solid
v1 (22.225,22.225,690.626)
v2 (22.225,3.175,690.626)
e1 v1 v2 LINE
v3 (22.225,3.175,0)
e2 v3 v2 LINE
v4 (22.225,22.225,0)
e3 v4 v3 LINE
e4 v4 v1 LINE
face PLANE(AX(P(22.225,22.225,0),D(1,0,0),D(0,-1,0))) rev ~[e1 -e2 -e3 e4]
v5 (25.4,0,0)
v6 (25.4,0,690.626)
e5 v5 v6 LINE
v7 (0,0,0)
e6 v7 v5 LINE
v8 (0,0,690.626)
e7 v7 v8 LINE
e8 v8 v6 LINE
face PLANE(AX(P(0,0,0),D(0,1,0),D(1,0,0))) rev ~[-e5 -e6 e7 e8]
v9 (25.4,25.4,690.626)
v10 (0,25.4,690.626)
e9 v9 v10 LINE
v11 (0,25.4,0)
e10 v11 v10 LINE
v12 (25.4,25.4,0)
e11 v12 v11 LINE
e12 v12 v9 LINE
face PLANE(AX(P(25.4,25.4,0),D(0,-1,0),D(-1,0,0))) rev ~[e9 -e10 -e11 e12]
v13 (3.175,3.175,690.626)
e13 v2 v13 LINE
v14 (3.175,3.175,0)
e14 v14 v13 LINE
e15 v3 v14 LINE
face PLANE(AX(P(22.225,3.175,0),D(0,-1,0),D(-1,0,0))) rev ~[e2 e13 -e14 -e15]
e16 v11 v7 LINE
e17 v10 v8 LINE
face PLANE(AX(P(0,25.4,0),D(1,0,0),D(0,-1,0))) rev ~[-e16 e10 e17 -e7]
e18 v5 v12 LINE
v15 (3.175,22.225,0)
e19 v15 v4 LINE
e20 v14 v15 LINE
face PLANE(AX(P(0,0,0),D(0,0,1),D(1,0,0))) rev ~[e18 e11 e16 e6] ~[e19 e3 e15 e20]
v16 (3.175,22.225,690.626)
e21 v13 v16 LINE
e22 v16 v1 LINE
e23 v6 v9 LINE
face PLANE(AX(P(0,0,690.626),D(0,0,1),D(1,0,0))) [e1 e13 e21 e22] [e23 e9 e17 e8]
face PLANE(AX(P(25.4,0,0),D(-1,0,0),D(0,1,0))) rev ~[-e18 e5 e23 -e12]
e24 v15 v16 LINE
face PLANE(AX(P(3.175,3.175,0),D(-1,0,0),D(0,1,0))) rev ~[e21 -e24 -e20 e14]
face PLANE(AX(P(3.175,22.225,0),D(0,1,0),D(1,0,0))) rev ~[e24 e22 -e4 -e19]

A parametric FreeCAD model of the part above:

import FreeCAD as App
import Part
import Sketcher
Q = App.Units.Quantity


def add_polygon(sketch, points):
    """Adds a closed chain of lines whose ends are joined by coincident constraints."""
    first, n = sketch.GeometryCount, len(points)
    for a, b in zip(points, points[1:] + points[:1]):
        sketch.addGeometry(Part.LineSegment(App.Vector(*a, 0), App.Vector(*b, 0)), False)
    for i in range(n):
        sketch.addConstraint(Sketcher.Constraint("Coincident", first + i, 2, first + (i + 1) % n, 1))

doc = App.newDocument("Part")
body = doc.addObject("PartDesign::Body", "Body")

sketch1 = doc.addObject("Sketcher::SketchObject", "Sketch")
body.addObject(sketch1)
sketch1.AttachmentSupport = (doc.XY_Plane, [""])
sketch1.MapMode = "FlatFace"
add_polygon(sketch1, [(0, 25), (0, 0), (25, 0), (25, 25)])
add_polygon(sketch1, [(3, 3), (3, 22), (22, 22), (22, 3)])
sketch1.addConstraint([
    Sketcher.Constraint("Vertical", 0),
    Sketcher.Constraint("Horizontal", 1),
    Sketcher.Constraint("Vertical", 2),
    Sketcher.Constraint("Horizontal", 3),
    Sketcher.Constraint("Vertical", 4),
    Sketcher.Constraint("Horizontal", 5),
    Sketcher.Constraint("Vertical", 6),
    Sketcher.Constraint("Horizontal", 7),
    Sketcher.Constraint("Coincident", 0, 2, -1, 1),
    Sketcher.Constraint("Equal", 3, 0),
    Sketcher.Constraint("Equal", 7, 4),
    Sketcher.Constraint("DistanceX", 1, 1, 1, 2, Q("1 in")),
    Sketcher.Constraint("DistanceX", -1, 1, 4, 2, Q("0.125 in")),
    Sketcher.Constraint("DistanceY", -1, 1, 6, 2, Q("0.125 in")),
    Sketcher.Constraint("DistanceY", 4, 2, 3, 2, Q("0.125 in")),
])
pad1 = doc.addObject("PartDesign::Pad", "Pad")
body.addObject(pad1)
pad1.Profile = sketch1
pad1.Length = Q("27.19 in")

doc.recompute()
